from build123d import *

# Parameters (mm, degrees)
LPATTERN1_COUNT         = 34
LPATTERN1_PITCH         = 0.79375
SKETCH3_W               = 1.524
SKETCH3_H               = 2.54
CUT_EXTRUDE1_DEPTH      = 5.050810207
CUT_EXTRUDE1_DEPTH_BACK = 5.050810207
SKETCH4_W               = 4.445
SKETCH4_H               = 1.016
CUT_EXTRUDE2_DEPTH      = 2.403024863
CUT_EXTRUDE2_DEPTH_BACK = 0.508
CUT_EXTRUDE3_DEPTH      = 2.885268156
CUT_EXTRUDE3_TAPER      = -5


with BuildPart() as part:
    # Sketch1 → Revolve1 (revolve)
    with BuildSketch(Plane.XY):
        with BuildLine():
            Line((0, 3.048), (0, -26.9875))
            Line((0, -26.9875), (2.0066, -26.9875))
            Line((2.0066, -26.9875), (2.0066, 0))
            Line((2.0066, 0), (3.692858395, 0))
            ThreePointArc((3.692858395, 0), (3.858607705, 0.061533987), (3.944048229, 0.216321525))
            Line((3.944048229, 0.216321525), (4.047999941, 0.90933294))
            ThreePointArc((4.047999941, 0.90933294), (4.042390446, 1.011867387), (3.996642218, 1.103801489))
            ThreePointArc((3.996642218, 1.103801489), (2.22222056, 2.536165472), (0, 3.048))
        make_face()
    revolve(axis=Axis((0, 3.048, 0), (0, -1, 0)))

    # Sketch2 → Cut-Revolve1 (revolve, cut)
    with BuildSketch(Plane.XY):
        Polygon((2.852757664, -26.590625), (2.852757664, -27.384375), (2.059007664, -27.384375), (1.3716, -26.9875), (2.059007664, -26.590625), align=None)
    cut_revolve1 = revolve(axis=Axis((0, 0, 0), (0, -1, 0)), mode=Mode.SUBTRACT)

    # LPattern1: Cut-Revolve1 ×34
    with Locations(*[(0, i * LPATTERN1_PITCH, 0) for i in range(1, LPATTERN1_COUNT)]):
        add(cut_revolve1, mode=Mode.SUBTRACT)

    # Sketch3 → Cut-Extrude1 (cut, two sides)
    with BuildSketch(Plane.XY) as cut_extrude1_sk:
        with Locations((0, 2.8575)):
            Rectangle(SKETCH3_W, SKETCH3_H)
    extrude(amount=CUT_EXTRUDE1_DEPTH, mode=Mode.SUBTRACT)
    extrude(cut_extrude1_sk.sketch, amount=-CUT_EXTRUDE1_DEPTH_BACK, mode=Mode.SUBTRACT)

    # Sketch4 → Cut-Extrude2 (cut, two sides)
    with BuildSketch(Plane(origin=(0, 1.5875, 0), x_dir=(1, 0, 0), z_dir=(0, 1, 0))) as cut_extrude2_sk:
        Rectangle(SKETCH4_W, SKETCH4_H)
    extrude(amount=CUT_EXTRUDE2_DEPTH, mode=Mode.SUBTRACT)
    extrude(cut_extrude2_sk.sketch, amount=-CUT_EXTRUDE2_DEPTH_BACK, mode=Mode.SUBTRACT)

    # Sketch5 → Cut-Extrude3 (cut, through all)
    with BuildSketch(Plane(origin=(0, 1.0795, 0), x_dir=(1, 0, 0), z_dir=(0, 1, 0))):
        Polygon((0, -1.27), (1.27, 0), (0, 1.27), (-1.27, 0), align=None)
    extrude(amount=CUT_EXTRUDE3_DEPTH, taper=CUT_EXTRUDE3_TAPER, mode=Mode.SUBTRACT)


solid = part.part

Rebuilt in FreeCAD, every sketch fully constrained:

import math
import FreeCAD as App
import Part
import Sketcher
Q = App.Units.Quantity

doc = App.newDocument("Part")
body = doc.addObject("PartDesign::Body", "Body")

# Sketch on XY plane
sketch1 = doc.addObject("Sketcher::SketchObject", "Sketch")
body.addObject(sketch1)
sketch1.AttachmentSupport = (doc.XY_Plane, [""])
sketch1.MapMode = "FlatFace"
sketch1.addGeometry([
    Part.LineSegment(App.Vector(0, 3.05, 0), App.Vector(0, -26.99, 0)),  # 0
    Part.LineSegment(App.Vector(0, -26.99, 0), App.Vector(2.01, -26.99, 0)),  # 1
    Part.LineSegment(App.Vector(2.01, -26.99, 0), App.Vector(2.01, 0, 0)),  # 2
    Part.LineSegment(App.Vector(2.01, 0, 0), App.Vector(3.69, 0, 0)),  # 3
    Part.ArcOfCircle(Part.Circle(App.Vector(3.69, 0.25, 0), App.Vector(0, 0, 1), 0.25), math.radians(-90), math.radians(-9)),  # 4
    Part.LineSegment(App.Vector(3.94, 0.22, 0), App.Vector(4.05, 0.91, 0)),  # 5
    Part.ArcOfCircle(Part.Circle(App.Vector(3.8, 0.95, 0), App.Vector(0, 0, 1), 0.25), math.radians(-9), math.radians(38)),  # 6
    Part.ArcOfCircle(Part.Circle(App.Vector(0, -2.03, 0), App.Vector(0, 0, 1), 5.08), math.radians(38), math.radians(90)),  # 7
], False)
sketch1.addConstraint([
    Sketcher.Constraint("Coincident", 0, 2, 1, 1),
    Sketcher.Constraint("Coincident", 1, 2, 2, 1),
    Sketcher.Constraint("Coincident", 2, 2, 3, 1),
    Sketcher.Constraint("Tangent", 3, 2, 4, 1),
    Sketcher.Constraint("Tangent", 4, 2, 5, 1),
    Sketcher.Constraint("Tangent", 5, 2, 6, 1),
    Sketcher.Constraint("Tangent", 6, 2, 7, 1),
    Sketcher.Constraint("Coincident", 7, 2, 0, 1),
    Sketcher.Constraint("Vertical", 0),
    Sketcher.Constraint("Horizontal", 1),
    Sketcher.Constraint("Vertical", 2),
    Sketcher.Constraint("Horizontal", 3),
    Sketcher.Constraint("Equal", 4, 6),
    Sketcher.Constraint("PointOnObject", 7, 3, -2),
    Sketcher.Constraint("PointOnObject", 0, 2, -2),
    Sketcher.Constraint("PointOnObject", 2, 2, -1),
    Sketcher.Constraint("Radius", 7, Q("0.2 in")),
    Sketcher.Constraint("Radius", 4, Q("0.01 in")),
    Sketcher.Constraint("DistanceX", 1, 1, 1, 2, Q("0.079 in")),
    Sketcher.Constraint("DistanceY", 2, 1, 2, 2, Q("1.0625 in")),
    Sketcher.Constraint("DistanceY", 7, 3, -1, 1, Q("0.08 in")),
    Sketcher.Constraint("DistanceX", 3, 1, 3, 2, Q("1.686258 mm")),
    Sketcher.Constraint("DistanceX", -1, 1, 5, 2, Q("4.048 mm")),
])
revolution = doc.addObject("PartDesign::Revolution", "Revolution")
body.addObject(revolution)
revolution.Profile = sketch1
revolution.ReferenceAxis = (sketch1, ["V_Axis"])
revolution.Angle = 360

# Sketch on XY plane
sketch2 = doc.addObject("Sketcher::SketchObject", "Sketch001")
body.addObject(sketch2)
sketch2.AttachmentSupport = (doc.XY_Plane, [""])
sketch2.MapMode = "FlatFace"
sketch2.addGeometry([
    Part.LineSegment(App.Vector(2.9, -27.4, 0), App.Vector(2.9, -26.6, 0)),  # 0
    Part.LineSegment(App.Vector(2.9, -26.6, 0), App.Vector(2.1, -26.6, 0)),  # 1
    Part.LineSegment(App.Vector(2.1, -26.6, 0), App.Vector(1.4, -27, 0)),  # 2
    Part.LineSegment(App.Vector(1.4, -27, 0), App.Vector(2.1, -27.4, 0)),  # 3
    Part.LineSegment(App.Vector(2.1, -27.4, 0), App.Vector(2.9, -27.4, 0)),  # 4
], False)
sketch2.addConstraint([
    Sketcher.Constraint("Coincident", 0, 2, 1, 1),
    Sketcher.Constraint("Coincident", 1, 2, 2, 1),
    Sketcher.Constraint("Coincident", 2, 2, 3, 1),
    Sketcher.Constraint("Coincident", 3, 2, 4, 1),
    Sketcher.Constraint("Coincident", 4, 2, 0, 1),
    Sketcher.Constraint("Vertical", 0),
    Sketcher.Constraint("Horizontal", 1),
    Sketcher.Constraint("Horizontal", 4),
    Sketcher.Constraint("Vertical", 1, 2, 3, 2),
    Sketcher.Constraint("Equal", 4, 0),
    Sketcher.Constraint("Equal", 2, 3),
    Sketcher.Constraint("Angle", 2, Q("-150 deg")),
    Sketcher.Constraint("DistanceX", 1, 2, 1, 1, Q("0.03125 in")),
    Sketcher.Constraint("DistanceY", 0, 2, -1, 1, Q("1.046875 in")),
    Sketcher.Constraint("DistanceX", -1, 1, 2, 2, Q("0.054 in")),
])
groove = doc.addObject("PartDesign::Groove", "Groove")
body.addObject(groove)
groove.Profile = sketch2
groove.ReferenceAxis = (sketch2, ["V_Axis"])
groove.Angle = 360
doc.recompute()

linearpattern = doc.addObject("PartDesign::LinearPattern", "LinearPattern")
body.addObject(linearpattern)
linearpattern.Originals = [groove]
linearpattern.Direction = (doc.Y_Axis, [""])
linearpattern.Mode = "offset"
linearpattern.Offset = Q("0.03125 in")
linearpattern.Occurrences = 34
body.Tip = linearpattern

# Sketch on XY plane
sketch3 = doc.addObject("Sketcher::SketchObject", "Sketch002")
body.addObject(sketch3)
sketch3.AttachmentSupport = (doc.XY_Plane, [""])
sketch3.MapMode = "FlatFace"
sketch3.addGeometry([
    Part.LineSegment(App.Vector(-0.8, 4.1, 0), App.Vector(-0.8, 1.6, 0)),
    Part.LineSegment(App.Vector(-0.8, 1.6, 0), App.Vector(0.8, 1.6, 0)),
    Part.LineSegment(App.Vector(0.8, 1.6, 0), App.Vector(0.8, 4.1, 0)),
    Part.LineSegment(App.Vector(0.8, 4.1, 0), App.Vector(-0.8, 4.1, 0)),
], False)
sketch3.addConstraint([
    Sketcher.Constraint("Coincident", 0, 2, 1, 1),
    Sketcher.Constraint("Coincident", 1, 2, 2, 1),
    Sketcher.Constraint("Coincident", 2, 2, 3, 1),
    Sketcher.Constraint("Coincident", 3, 2, 0, 1),
    Sketcher.Constraint("Vertical", 0),
    Sketcher.Constraint("Horizontal", 1),
    Sketcher.Constraint("Vertical", 2),
    Sketcher.Constraint("Horizontal", 3),
    Sketcher.Constraint("DistanceY", 0, 2, 0, 1, Q("0.1 in")),
    Sketcher.Constraint("DistanceX", 1, 1, 1, 2, Q("0.06 in")),
    Sketcher.Constraint("DistanceX", 0, 2, -1, 1, Q("0.03 in")),
    Sketcher.Constraint("DistanceY", -1, 1, 0, 2, Q("0.0625 in")),
])
pocket1 = doc.addObject("PartDesign::Pocket", "Pocket")
body.addObject(pocket1)
pocket1.Profile = sketch3
pocket1.Type = "ThroughAll"
pocket1.Midplane = True

# Sketch on XZ plane
sketch4 = doc.addObject("Sketcher::SketchObject", "Sketch003")
body.addObject(sketch4)
sketch4.AttachmentSupport = (doc.XZ_Plane, [""])
sketch4.MapMode = "FlatFace"
sketch4.AttachmentOffset = App.Placement(App.Vector(0, 0, -0.0625 * 25.4), App.Rotation())
sketch4.addGeometry([
    Part.LineSegment(App.Vector(-2.2, -0.5, 0), App.Vector(-2.2, 0.5, 0)),
    Part.LineSegment(App.Vector(-2.2, 0.5, 0), App.Vector(2.2, 0.5, 0)),
    Part.LineSegment(App.Vector(2.2, 0.5, 0), App.Vector(2.2, -0.5, 0)),
    Part.LineSegment(App.Vector(2.2, -0.5, 0), App.Vector(-2.2, -0.5, 0)),
], False)
sketch4.addConstraint([
    Sketcher.Constraint("Coincident", 0, 2, 1, 1),
    Sketcher.Constraint("Coincident", 1, 2, 2, 1),
    Sketcher.Constraint("Coincident", 2, 2, 3, 1),
    Sketcher.Constraint("Coincident", 3, 2, 0, 1),
    Sketcher.Constraint("Vertical", 0),
    Sketcher.Constraint("Horizontal", 1),
    Sketcher.Constraint("Vertical", 2),
    Sketcher.Constraint("Horizontal", 3),
    Sketcher.Constraint("Symmetric", 0, 2, 2, 2, -1, 1),
    Sketcher.Constraint("DistanceY", 0, 1, 0, 2, Q("0.04 in")),
    Sketcher.Constraint("DistanceX", 1, 1, 1, 2, Q("0.175 in")),
])
pocket2 = doc.addObject("PartDesign::Pocket", "Pocket001")
body.addObject(pocket2)
pocket2.Profile = sketch4
pocket2.Type = "TwoLengths"
pocket2.Length = 2.403025
pocket2.Length2 = Q("0.02 in")

# Sketch on XZ plane
sketch5 = doc.addObject("Sketcher::SketchObject", "Sketch004")
body.addObject(sketch5)
sketch5.AttachmentSupport = (doc.XZ_Plane, [""])
sketch5.MapMode = "FlatFace"
sketch5.AttachmentOffset = App.Placement(App.Vector(0, 0, -0.0425 * 25.4), App.Rotation())
sketch5.addGeometry([
    Part.LineSegment(App.Vector(0, 1.3, 0), App.Vector(1.3, 0, 0)),
    Part.LineSegment(App.Vector(1.3, 0, 0), App.Vector(0, -1.3, 0)),
    Part.LineSegment(App.Vector(0, -1.3, 0), App.Vector(-1.3, 0, 0)),
    Part.LineSegment(App.Vector(-1.3, 0, 0), App.Vector(0, 1.3, 0)),
], False)
sketch5.addConstraint([
    Sketcher.Constraint("Coincident", 0, 2, 1, 1),
    Sketcher.Constraint("Coincident", 1, 2, 2, 1),
    Sketcher.Constraint("Coincident", 2, 2, 3, 1),
    Sketcher.Constraint("Coincident", 3, 2, 0, 1),
    Sketcher.Constraint("Symmetric", 0, 2, 2, 2, -1, 1),
    Sketcher.Constraint("Symmetric", 1, 2, 3, 2, -1, 1),
    Sketcher.Constraint("PointOnObject", 0, 2, -1),
    Sketcher.Constraint("PointOnObject", 1, 2, -2),
    Sketcher.Constraint("Perpendicular", 0, 1),
    Sketcher.Constraint("DistanceX", 2, 2, 0, 2, Q("0.1 in")),
])
pocket3 = doc.addObject("PartDesign::Pocket", "Pocket002")
body.addObject(pocket3)
pocket3.Profile = sketch5
pocket3.Type = "ThroughAll"
pocket3.TaperAngle = 5

doc.recompute()
